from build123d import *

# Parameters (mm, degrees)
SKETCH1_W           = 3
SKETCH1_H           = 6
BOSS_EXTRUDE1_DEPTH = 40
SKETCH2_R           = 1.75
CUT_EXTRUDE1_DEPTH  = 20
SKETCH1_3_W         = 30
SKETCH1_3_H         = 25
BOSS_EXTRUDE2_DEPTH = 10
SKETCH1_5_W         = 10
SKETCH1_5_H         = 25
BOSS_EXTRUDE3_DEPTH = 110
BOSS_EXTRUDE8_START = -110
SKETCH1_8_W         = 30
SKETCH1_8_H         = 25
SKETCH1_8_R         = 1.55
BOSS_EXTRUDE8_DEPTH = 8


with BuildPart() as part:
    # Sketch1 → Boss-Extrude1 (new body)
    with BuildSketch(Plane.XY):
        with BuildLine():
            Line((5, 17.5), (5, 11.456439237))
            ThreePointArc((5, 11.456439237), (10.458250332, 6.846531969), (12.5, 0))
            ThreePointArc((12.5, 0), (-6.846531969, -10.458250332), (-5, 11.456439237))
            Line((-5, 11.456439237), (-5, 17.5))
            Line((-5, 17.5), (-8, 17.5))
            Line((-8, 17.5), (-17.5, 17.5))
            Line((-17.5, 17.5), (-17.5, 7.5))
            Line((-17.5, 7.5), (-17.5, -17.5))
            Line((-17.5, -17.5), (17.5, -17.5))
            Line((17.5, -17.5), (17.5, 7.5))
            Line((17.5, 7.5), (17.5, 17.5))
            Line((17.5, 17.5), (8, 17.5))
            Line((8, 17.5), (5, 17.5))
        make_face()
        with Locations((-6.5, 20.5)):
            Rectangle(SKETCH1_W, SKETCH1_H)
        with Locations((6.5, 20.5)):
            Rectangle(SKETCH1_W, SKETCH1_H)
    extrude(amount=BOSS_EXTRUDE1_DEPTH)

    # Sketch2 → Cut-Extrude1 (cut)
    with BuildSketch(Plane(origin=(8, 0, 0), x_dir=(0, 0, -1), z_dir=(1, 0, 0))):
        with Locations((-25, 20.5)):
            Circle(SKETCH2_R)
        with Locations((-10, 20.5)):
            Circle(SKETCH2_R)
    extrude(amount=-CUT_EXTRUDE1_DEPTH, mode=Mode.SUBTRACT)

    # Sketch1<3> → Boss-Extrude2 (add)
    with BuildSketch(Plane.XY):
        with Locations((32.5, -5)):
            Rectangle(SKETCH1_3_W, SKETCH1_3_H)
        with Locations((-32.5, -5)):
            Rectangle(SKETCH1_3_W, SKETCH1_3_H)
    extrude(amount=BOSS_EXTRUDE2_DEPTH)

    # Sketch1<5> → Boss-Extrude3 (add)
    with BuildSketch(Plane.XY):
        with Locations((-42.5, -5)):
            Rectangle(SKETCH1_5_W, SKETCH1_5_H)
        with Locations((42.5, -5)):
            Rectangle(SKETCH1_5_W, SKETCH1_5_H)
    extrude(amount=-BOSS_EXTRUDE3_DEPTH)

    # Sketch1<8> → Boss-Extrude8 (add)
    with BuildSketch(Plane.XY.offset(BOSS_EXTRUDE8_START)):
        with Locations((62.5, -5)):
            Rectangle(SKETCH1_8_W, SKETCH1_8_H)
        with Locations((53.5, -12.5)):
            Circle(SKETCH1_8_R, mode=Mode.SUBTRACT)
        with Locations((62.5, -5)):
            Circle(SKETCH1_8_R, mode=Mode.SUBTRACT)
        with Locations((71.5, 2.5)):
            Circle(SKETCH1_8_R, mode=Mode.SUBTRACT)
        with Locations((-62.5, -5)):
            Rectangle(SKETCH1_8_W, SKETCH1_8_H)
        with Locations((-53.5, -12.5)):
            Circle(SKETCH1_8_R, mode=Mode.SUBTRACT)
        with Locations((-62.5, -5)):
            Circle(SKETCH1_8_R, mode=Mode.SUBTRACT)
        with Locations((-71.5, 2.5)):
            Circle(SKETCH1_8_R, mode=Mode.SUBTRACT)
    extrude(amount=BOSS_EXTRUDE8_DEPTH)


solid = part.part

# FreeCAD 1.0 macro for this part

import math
import FreeCAD as App
import Part
import Sketcher

V = App.Vector

doc = App.newDocument("Part")
body = doc.addObject("PartDesign::Body", "Body")

# Sketch on XY plane
sketch1 = body.newObject("Sketcher::SketchObject", "Sketch")
sketch1.AttachmentSupport = (doc.getObject("XY_Plane"), [""])
sketch1.MapMode = "FlatFace"
sketch1.addGeometry([
    Part.ArcOfCircle(Part.Circle(V(0, 0, 0), V(0, 0, 1), 12.5), math.radians(0), math.radians(66.421822)),  # 0
    Part.ArcOfCircle(Part.Circle(V(0, 0, 0), V(0, 0, 1), 12.5), math.radians(113.578178), math.radians(360)),  # 1
    Part.LineSegment(V(-5, 11.456439, 0), V(-5, 23.5, 0)),  # 2
    Part.LineSegment(V(-5, 23.5, 0), V(-8, 23.5, 0)),  # 3
    Part.LineSegment(V(-8, 23.5, 0), V(-8, 17.5, 0)),  # 4
    Part.LineSegment(V(-8, 17.5, 0), V(-17.5, 17.5, 0)),  # 5
    Part.LineSegment(V(-17.5, 17.5, 0), V(-17.5, -17.5, 0)),  # 6
    Part.LineSegment(V(-17.5, -17.5, 0), V(17.5, -17.5, 0)),  # 7
    Part.LineSegment(V(17.5, -17.5, 0), V(17.5, 17.5, 0)),  # 8
    Part.LineSegment(V(17.5, 17.5, 0), V(8, 17.5, 0)),  # 9
    Part.LineSegment(V(8, 17.5, 0), V(8, 23.5, 0)),  # 10
    Part.LineSegment(V(8, 23.5, 0), V(5, 23.5, 0)),  # 11
    Part.LineSegment(V(5, 23.5, 0), V(5, 11.456439, 0)),  # 12
], False)
sketch1.addConstraint([
    Sketcher.Constraint("Tangent", 0, 1, 1, 2),
    Sketcher.Constraint("Coincident", 1, 1, 2, 1),
    Sketcher.Constraint("Coincident", 2, 2, 3, 1),
    Sketcher.Constraint("Coincident", 3, 2, 4, 1),
    Sketcher.Constraint("Coincident", 4, 2, 5, 1),
    Sketcher.Constraint("Coincident", 5, 2, 6, 1),
    Sketcher.Constraint("Coincident", 6, 2, 7, 1),
    Sketcher.Constraint("Coincident", 7, 2, 8, 1),
    Sketcher.Constraint("Coincident", 8, 2, 9, 1),
    Sketcher.Constraint("Coincident", 9, 2, 10, 1),
    Sketcher.Constraint("Coincident", 10, 2, 11, 1),
    Sketcher.Constraint("Coincident", 11, 2, 12, 1),
    Sketcher.Constraint("Coincident", 12, 2, 0, 2),
    Sketcher.Constraint("Vertical", 2),
    Sketcher.Constraint("Horizontal", 3),
    Sketcher.Constraint("Vertical", 4),
    Sketcher.Constraint("Horizontal", 5),
    Sketcher.Constraint("Vertical", 6),
    Sketcher.Constraint("Horizontal", 7),
    Sketcher.Constraint("Vertical", 8),
    Sketcher.Constraint("Horizontal", 9),
    Sketcher.Constraint("Vertical", 10),
    Sketcher.Constraint("Horizontal", 11),
    Sketcher.Constraint("Vertical", 12),
    Sketcher.Constraint("Coincident", 0, 3, -1, 1),
    Sketcher.Constraint("Equal", 0, 1),
    Sketcher.Constraint("Symmetric", 5, 2, 7, 2, -1, 1),
    Sketcher.Constraint("Symmetric", 4, 2, 9, 2, -2),
    Sketcher.Constraint("Symmetric", 2, 2, 11, 2, -2),
    Sketcher.Constraint("PointOnObject", 0, 1, -1),
    Sketcher.Constraint("Equal", 7, 6),
    Sketcher.Constraint("Radius", 0, 12.5),
    Sketcher.Constraint("DistanceX", 3, 2, 3, 1, 3.0),
    Sketcher.Constraint("DistanceX", 7, 1, 7, 2, 35.0),
    Sketcher.Constraint("DistanceY", 4, 2, 4, 1, 6.0),
    Sketcher.Constraint("DistanceX", 5, 2, 5, 1, 9.5),
])
pad1 = body.newObject("PartDesign::Pad", "Pad")
pad1.Profile = sketch1
pad1.Length = 40

# Sketch on YZ plane
sketch2 = body.newObject("Sketcher::SketchObject", "Sketch001")
sketch2.AttachmentSupport = (doc.getObject("YZ_Plane"), [""])
sketch2.MapMode = "FlatFace"
sketch2.AttachmentOffset = App.Placement(V(0, 0, 8), App.Rotation())
sketch2.addGeometry([
    Part.Circle(V(20.5, 25, 0), V(0, 0, 1), 1.75),
    Part.Circle(V(20.5, 10, 0), V(0, 0, 1), 1.75),
], False)
sketch2.addConstraint([
    Sketcher.Constraint("Equal", 0, 1),
    Sketcher.Constraint("Vertical", 0, 3, 1, 3),
    Sketcher.Constraint("Diameter", 0, 3.5),
    Sketcher.Constraint("DistanceY", -1, 1, 0, 3, 25.0),
    Sketcher.Constraint("DistanceY", -1, 1, 1, 3, 10.0),
    Sketcher.Constraint("DistanceX", -1, 1, 0, 3, 20.5),
])
pocket1 = body.newObject("PartDesign::Pocket", "Pocket")
pocket1.Profile = sketch2
pocket1.Length = 20

# Sketch on XY plane
sketch3 = body.newObject("Sketcher::SketchObject", "Sketch002")
sketch3.AttachmentSupport = (doc.getObject("XY_Plane"), [""])
sketch3.MapMode = "FlatFace"
sketch3.addGeometry([
    Part.LineSegment(V(17.5, 7.5, 0), V(17.5, -17.5, 0)),  # 0
    Part.LineSegment(V(17.5, -17.5, 0), V(47.5, -17.5, 0)),  # 1
    Part.LineSegment(V(47.5, -17.5, 0), V(47.5, 7.5, 0)),  # 2
    Part.LineSegment(V(47.5, 7.5, 0), V(17.5, 7.5, 0)),  # 3
    Part.LineSegment(V(-47.5, 7.5, 0), V(-47.5, -17.5, 0)),  # 4
    Part.LineSegment(V(-47.5, -17.5, 0), V(-17.5, -17.5, 0)),  # 5
    Part.LineSegment(V(-17.5, -17.5, 0), V(-17.5, 7.5, 0)),  # 6
    Part.LineSegment(V(-17.5, 7.5, 0), V(-47.5, 7.5, 0)),  # 7
], False)
sketch3.addConstraint([
    Sketcher.Constraint("Coincident", 0, 2, 1, 1),
    Sketcher.Constraint("Coincident", 1, 2, 2, 1),
    Sketcher.Constraint("Coincident", 2, 2, 3, 1),
    Sketcher.Constraint("Coincident", 3, 2, 0, 1),
    Sketcher.Constraint("Coincident", 4, 2, 5, 1),
    Sketcher.Constraint("Coincident", 5, 2, 6, 1),
    Sketcher.Constraint("Coincident", 6, 2, 7, 1),
    Sketcher.Constraint("Coincident", 7, 2, 4, 1),
    Sketcher.Constraint("Vertical", 0),
    Sketcher.Constraint("Horizontal", 1),
    Sketcher.Constraint("Vertical", 2),
    Sketcher.Constraint("Horizontal", 3),
    Sketcher.Constraint("Vertical", 4),
    Sketcher.Constraint("Horizontal", 5),
    Sketcher.Constraint("Vertical", 6),
    Sketcher.Constraint("Horizontal", 7),
    Sketcher.Constraint("Symmetric", 1, 2, 4, 2, -2),
    Sketcher.Constraint("Symmetric", 3, 2, 6, 2, -2),
    Sketcher.Constraint("DistanceX", 1, 1, 1, 2, 30.0),
    Sketcher.Constraint("DistanceY", 0, 2, 0, 1, 25.0),
    Sketcher.Constraint("DistanceX", 4, 2, 0, 2, 65.0),
    Sketcher.Constraint("DistanceY", 0, 2, -1, 1, 17.5),
])
pad2 = body.newObject("PartDesign::Pad", "Pad001")
pad2.Profile = sketch3
pad2.Length = 10

# Sketch on XY plane
sketch4 = body.newObject("Sketcher::SketchObject", "Sketch003")
sketch4.AttachmentSupport = (doc.getObject("XY_Plane"), [""])
sketch4.MapMode = "FlatFace"
sketch4.addGeometry([
    Part.LineSegment(V(-47.5, 7.5, 0), V(-47.5, -17.5, 0)),  # 0
    Part.LineSegment(V(-47.5, -17.5, 0), V(-37.5, -17.5, 0)),  # 1
    Part.LineSegment(V(-37.5, -17.5, 0), V(-37.5, 7.5, 0)),  # 2
    Part.LineSegment(V(-37.5, 7.5, 0), V(-47.5, 7.5, 0)),  # 3
    Part.LineSegment(V(37.5, 7.5, 0), V(37.5, -17.5, 0)),  # 4
    Part.LineSegment(V(37.5, -17.5, 0), V(47.5, -17.5, 0)),  # 5
    Part.LineSegment(V(47.5, -17.5, 0), V(47.5, 7.5, 0)),  # 6
    Part.LineSegment(V(47.5, 7.5, 0), V(37.5, 7.5, 0)),  # 7
], False)
sketch4.addConstraint([
    Sketcher.Constraint("Coincident", 0, 2, 1, 1),
    Sketcher.Constraint("Coincident", 1, 2, 2, 1),
    Sketcher.Constraint("Coincident", 2, 2, 3, 1),
    Sketcher.Constraint("Coincident", 3, 2, 0, 1),
    Sketcher.Constraint("Coincident", 4, 2, 5, 1),
    Sketcher.Constraint("Coincident", 5, 2, 6, 1),
    Sketcher.Constraint("Coincident", 6, 2, 7, 1),
    Sketcher.Constraint("Coincident", 7, 2, 4, 1),
    Sketcher.Constraint("Vertical", 0),
    Sketcher.Constraint("Horizontal", 1),
    Sketcher.Constraint("Vertical", 2),
    Sketcher.Constraint("Horizontal", 3),
    Sketcher.Constraint("Vertical", 4),
    Sketcher.Constraint("Horizontal", 5),
    Sketcher.Constraint("Vertical", 6),
    Sketcher.Constraint("Horizontal", 7),
    Sketcher.Constraint("Symmetric", 1, 2, 4, 2, -2),
    Sketcher.Constraint("Symmetric", 3, 2, 6, 2, -2),
    Sketcher.Constraint("DistanceX", 1, 1, 1, 2, 10.0),
    Sketcher.Constraint("DistanceY", 0, 2, 0, 1, 25.0),
    Sketcher.Constraint("DistanceX", 1, 2, 4, 2, 75.0),
    Sketcher.Constraint("DistanceY", 0, 2, -1, 1, 17.5),
])
pad3 = body.newObject("PartDesign::Pad", "Pad002")
pad3.Profile = sketch4
pad3.Length = 110
pad3.Reversed = True

# Sketch on XY plane
sketch5 = body.newObject("Sketcher::SketchObject", "Sketch004")
sketch5.AttachmentSupport = (doc.getObject("XY_Plane"), [""])
sketch5.MapMode = "FlatFace"
sketch5.AttachmentOffset = App.Placement(V(0, 0, -110), App.Rotation())
sketch5.addGeometry([
    Part.LineSegment(V(47.5, 7.5, 0), V(47.5, -17.5, 0)),  # 0
    Part.LineSegment(V(47.5, -17.5, 0), V(77.5, -17.5, 0)),  # 1
    Part.LineSegment(V(77.5, -17.5, 0), V(77.5, 7.5, 0)),  # 2
    Part.LineSegment(V(77.5, 7.5, 0), V(47.5, 7.5, 0)),  # 3
    Part.Circle(V(53.5, -12.5, 0), V(0, 0, 1), 1.55),  # 4
    Part.Circle(V(62.5, -5, 0), V(0, 0, 1), 1.55),  # 5
    Part.Circle(V(71.5, 2.5, 0), V(0, 0, 1), 1.55),  # 6
    Part.LineSegment(V(-77.5, 7.5, 0), V(-77.5, -17.5, 0)),  # 7
    Part.LineSegment(V(-77.5, -17.5, 0), V(-47.5, -17.5, 0)),  # 8
    Part.LineSegment(V(-47.5, -17.5, 0), V(-47.5, 7.5, 0)),  # 9
    Part.LineSegment(V(-47.5, 7.5, 0), V(-77.5, 7.5, 0)),  # 10
    Part.Circle(V(-53.5, -12.5, 0), V(0, 0, 1), 1.55),  # 11
    Part.Circle(V(-71.5, 2.5, 0), V(0, 0, 1), 1.55),  # 12
    Part.Circle(V(-62.5, -5, 0), V(0, 0, 1), 1.55),  # 13
], False)
sketch5.addConstraint([
    Sketcher.Constraint("Coincident", 0, 2, 1, 1),
    Sketcher.Constraint("Coincident", 1, 2, 2, 1),
    Sketcher.Constraint("Coincident", 2, 2, 3, 1),
    Sketcher.Constraint("Coincident", 3, 2, 0, 1),
    Sketcher.Constraint("Coincident", 7, 2, 8, 1),
    Sketcher.Constraint("Coincident", 8, 2, 9, 1),
    Sketcher.Constraint("Coincident", 9, 2, 10, 1),
    Sketcher.Constraint("Coincident", 10, 2, 7, 1),
    Sketcher.Constraint("Vertical", 0),
    Sketcher.Constraint("Horizontal", 1),
    Sketcher.Constraint("Vertical", 2),
    Sketcher.Constraint("Horizontal", 3),
    Sketcher.Constraint("Vertical", 7),
    Sketcher.Constraint("Horizontal", 8),
    Sketcher.Constraint("Vertical", 9),
    Sketcher.Constraint("Horizontal", 10),
    Sketcher.Constraint("Equal", 4, 5),
    Sketcher.Constraint("Equal", 5, 6),
    Sketcher.Constraint("Equal", 6, 11),
    Sketcher.Constraint("Equal", 11, 12),
    Sketcher.Constraint("Equal", 12, 13),
    Sketcher.Constraint("Symmetric", 4, 3, 11, 3, -2),
    Sketcher.Constraint("Symmetric", 6, 3, 12, 3, -2),
    Sketcher.Constraint("Symmetric", 5, 3, 13, 3, -2),
    Sketcher.Constraint("Symmetric", 1, 2, 7, 2, -2),
    Sketcher.Constraint("Symmetric", 3, 2, 9, 2, -2),
    Sketcher.Constraint("Diameter", 4, 3.1),
    Sketcher.Constraint("DistanceX", 1, 1, 1, 2, 30.0),
    Sketcher.Constraint("DistanceY", 0, 2, 0, 1, 25.0),
    Sketcher.Constraint("DistanceY", 5, 3, -1, 1, 5.0),
    Sketcher.Constraint("DistanceX", 4, 3, 5, 3, 9.0),
    Sketcher.Constraint("DistanceX", 5, 3, 6, 3, 9.0),
    Sketcher.Constraint("DistanceY", 4, 3, 6, 3, 15.0),
    Sketcher.Constraint("DistanceX", 11, 3, 4, 3, 107.0),
    Sketcher.Constraint("DistanceX", 0, 2, 4, 3, 6.0),
    Sketcher.Constraint("DistanceY", 0, 2, 4, 3, 5.0),
    Sketcher.Constraint("DistanceY", 4, 3, -1, 1, 12.5),
])
pad4 = body.newObject("PartDesign::Pad", "Pad003")
pad4.Profile = sketch5
pad4.Length = 8

doc.recompute()
